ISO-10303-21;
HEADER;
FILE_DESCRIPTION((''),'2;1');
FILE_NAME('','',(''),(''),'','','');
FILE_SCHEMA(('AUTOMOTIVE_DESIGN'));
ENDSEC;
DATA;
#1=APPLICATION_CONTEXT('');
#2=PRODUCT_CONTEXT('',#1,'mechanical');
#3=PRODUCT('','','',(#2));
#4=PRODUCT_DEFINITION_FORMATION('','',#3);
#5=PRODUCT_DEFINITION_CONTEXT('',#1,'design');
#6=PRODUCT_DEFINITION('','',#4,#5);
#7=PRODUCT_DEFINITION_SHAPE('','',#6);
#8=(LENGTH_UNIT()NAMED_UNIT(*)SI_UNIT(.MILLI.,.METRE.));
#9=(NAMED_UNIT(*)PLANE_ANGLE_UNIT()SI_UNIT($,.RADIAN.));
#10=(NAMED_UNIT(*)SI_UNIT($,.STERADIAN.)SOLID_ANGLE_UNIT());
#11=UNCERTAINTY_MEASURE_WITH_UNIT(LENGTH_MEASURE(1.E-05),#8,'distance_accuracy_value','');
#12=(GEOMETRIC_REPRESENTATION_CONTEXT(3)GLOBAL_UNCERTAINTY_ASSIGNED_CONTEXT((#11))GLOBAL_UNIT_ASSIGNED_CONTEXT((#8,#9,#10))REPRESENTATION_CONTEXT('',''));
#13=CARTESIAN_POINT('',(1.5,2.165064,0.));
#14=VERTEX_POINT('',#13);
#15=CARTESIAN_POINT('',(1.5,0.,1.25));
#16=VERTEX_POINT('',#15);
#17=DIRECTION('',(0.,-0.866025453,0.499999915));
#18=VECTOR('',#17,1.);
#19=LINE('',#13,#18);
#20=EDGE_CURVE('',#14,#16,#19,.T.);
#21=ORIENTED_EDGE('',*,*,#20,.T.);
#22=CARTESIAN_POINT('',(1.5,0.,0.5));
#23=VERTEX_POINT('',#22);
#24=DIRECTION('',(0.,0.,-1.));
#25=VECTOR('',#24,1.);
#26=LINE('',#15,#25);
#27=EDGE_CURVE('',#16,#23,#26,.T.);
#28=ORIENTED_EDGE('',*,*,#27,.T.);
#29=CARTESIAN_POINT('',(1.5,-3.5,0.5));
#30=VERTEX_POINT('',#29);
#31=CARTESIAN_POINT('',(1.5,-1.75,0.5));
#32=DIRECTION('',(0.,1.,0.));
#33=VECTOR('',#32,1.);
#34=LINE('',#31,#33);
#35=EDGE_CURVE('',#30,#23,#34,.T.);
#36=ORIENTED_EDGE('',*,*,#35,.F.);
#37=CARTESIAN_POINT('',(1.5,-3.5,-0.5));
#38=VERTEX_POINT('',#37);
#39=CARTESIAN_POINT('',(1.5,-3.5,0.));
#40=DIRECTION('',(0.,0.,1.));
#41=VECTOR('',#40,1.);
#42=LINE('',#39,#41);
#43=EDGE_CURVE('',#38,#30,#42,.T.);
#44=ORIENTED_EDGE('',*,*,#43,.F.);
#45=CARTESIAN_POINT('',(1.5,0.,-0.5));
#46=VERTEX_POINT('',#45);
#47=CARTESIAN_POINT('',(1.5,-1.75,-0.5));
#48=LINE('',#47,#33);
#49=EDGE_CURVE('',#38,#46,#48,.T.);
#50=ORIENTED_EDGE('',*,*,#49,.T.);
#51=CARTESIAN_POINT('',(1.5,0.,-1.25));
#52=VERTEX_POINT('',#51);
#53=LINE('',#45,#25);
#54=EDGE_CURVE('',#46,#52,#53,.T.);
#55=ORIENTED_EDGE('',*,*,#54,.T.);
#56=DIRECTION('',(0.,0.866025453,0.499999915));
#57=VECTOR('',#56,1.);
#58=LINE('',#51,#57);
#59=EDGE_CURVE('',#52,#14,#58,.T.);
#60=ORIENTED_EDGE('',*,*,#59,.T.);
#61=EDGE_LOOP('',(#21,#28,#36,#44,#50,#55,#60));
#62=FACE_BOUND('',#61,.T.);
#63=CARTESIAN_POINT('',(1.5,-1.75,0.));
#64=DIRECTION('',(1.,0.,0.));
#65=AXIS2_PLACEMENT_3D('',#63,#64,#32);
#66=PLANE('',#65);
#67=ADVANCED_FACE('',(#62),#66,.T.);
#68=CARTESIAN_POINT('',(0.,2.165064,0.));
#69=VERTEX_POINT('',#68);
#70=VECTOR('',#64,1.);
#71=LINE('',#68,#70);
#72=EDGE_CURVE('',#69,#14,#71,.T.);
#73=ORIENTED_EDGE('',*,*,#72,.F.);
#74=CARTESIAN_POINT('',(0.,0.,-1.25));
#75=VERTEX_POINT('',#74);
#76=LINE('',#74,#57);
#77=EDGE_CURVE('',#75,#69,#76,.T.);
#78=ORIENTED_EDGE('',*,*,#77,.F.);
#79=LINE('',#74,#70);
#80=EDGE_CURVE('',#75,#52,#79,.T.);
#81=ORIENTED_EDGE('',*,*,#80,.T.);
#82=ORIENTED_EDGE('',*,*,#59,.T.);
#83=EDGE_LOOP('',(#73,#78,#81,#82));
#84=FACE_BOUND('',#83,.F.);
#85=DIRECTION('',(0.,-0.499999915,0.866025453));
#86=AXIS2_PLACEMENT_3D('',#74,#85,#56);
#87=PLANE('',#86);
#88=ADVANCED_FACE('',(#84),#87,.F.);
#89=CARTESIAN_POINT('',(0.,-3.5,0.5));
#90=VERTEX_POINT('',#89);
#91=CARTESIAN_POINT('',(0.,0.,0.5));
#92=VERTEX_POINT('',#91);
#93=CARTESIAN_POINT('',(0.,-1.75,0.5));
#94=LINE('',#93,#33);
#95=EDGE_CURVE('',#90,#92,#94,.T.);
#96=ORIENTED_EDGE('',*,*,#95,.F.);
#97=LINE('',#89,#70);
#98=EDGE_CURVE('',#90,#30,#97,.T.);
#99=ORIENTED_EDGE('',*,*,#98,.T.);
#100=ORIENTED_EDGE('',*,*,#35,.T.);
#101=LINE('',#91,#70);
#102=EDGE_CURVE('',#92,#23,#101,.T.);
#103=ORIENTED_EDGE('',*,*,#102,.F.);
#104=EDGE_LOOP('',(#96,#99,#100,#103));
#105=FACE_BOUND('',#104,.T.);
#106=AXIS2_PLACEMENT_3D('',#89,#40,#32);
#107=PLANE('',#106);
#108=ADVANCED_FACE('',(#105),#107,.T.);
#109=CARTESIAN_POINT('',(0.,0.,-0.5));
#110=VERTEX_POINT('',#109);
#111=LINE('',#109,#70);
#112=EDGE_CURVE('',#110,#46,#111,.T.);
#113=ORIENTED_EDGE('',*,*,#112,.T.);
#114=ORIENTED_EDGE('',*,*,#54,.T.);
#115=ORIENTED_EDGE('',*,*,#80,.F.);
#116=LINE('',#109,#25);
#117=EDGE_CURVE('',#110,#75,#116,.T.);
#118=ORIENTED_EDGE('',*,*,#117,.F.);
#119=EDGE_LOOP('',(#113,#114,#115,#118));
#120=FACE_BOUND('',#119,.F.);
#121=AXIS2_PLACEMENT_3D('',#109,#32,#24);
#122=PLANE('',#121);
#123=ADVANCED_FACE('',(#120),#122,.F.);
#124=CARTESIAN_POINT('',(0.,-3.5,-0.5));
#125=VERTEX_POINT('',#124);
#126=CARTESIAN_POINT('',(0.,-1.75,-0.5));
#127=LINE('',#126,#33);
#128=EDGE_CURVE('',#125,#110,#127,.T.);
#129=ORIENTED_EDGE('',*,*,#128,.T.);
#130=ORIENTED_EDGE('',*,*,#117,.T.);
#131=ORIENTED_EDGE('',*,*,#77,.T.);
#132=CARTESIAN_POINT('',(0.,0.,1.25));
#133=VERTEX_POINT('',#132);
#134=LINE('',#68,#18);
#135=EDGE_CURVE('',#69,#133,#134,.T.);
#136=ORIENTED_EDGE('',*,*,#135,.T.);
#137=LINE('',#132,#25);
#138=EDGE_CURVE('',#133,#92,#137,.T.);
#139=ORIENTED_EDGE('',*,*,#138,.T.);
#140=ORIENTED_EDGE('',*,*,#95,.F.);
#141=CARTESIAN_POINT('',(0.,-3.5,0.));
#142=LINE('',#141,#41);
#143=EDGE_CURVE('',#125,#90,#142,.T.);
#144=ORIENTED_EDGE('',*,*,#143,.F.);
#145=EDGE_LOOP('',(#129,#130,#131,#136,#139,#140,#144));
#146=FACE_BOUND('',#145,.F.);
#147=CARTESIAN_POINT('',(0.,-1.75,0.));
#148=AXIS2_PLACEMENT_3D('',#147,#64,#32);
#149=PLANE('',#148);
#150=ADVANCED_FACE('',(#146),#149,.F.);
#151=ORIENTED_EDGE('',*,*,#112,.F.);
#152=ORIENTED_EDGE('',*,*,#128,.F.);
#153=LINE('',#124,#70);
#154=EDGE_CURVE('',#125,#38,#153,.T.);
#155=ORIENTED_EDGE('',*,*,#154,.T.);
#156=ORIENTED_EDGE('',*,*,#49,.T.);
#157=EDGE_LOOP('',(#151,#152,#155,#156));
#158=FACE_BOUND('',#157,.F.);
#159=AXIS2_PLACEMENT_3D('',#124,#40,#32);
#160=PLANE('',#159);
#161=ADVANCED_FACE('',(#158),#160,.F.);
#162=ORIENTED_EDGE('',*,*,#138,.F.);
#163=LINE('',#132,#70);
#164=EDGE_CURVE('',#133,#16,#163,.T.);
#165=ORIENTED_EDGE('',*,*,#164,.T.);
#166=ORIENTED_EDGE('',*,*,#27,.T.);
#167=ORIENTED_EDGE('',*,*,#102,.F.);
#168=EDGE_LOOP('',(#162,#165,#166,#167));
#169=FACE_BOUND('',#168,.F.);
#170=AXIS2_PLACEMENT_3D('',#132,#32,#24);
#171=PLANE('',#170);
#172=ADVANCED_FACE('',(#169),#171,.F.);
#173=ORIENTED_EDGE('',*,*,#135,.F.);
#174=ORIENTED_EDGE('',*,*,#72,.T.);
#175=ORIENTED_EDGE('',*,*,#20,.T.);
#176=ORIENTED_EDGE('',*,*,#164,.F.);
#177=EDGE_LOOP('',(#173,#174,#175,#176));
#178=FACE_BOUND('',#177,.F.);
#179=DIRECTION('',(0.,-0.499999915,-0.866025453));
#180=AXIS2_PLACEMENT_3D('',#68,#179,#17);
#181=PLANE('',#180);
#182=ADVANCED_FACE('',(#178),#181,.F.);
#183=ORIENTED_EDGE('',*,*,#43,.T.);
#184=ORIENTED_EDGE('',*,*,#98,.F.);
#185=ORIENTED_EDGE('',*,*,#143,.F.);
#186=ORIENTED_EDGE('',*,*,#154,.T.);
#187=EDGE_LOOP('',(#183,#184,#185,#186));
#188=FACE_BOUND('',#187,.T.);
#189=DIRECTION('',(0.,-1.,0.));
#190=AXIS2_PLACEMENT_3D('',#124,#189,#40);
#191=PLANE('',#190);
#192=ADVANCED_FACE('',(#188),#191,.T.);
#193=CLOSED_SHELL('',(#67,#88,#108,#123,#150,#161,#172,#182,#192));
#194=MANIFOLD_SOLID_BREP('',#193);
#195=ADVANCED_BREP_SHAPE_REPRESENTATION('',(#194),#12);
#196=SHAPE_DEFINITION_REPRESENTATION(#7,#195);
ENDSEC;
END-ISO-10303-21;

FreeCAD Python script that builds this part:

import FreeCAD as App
import Part
import Sketcher

V = App.Vector
Q = App.Units.Quantity


def add_polygon(sketch, points):
    """Adds a closed chain of lines whose ends are joined by coincident constraints."""
    first, n = sketch.GeometryCount, len(points)
    for a, b in zip(points, points[1:] + points[:1]):
        sketch.addGeometry(Part.LineSegment(App.Vector(*a, 0), App.Vector(*b, 0)), False)
    for i in range(n):
        sketch.addConstraint(Sketcher.Constraint("Coincident", first + i, 2, first + (i + 1) % n, 1))

doc = App.newDocument("Part")
params = doc.addObject("Spreadsheet::Sheet", "Params")
for row, (alias, value) in enumerate([
    ("sketch1_height", "1 mm"),
    ("sketch1_width", "3.5 mm"),
    ("sketch1_length", "2.5 mm"),
    ("pad1_length", "1.5 mm"),
], start=1):
    params.set(f"A{row}", alias)
    params.set(f"B{row}", "=" + value)
    params.setAlias(f"B{row}", alias)

body = doc.addObject("PartDesign::Body", "Body")

sketch1 = body.newObject("Sketcher::SketchObject", "Sketch")
sketch1.AttachmentSupport = (doc.getObject("YZ_Plane"), [""])
sketch1.MapMode = "FlatFace"
add_polygon(sketch1, [(-3.5, 0.5), (-3.5, -0.5), (0, -0.5), (0, -1.2), (2.2, 0), (0, 1.2), (0, 0.5)])
sketch1.addConstraint(Sketcher.Constraint("Vertical", 0))
sketch1.addConstraint(Sketcher.Constraint("Horizontal", 1))
sketch1.addConstraint(Sketcher.Constraint("Vertical", 2))
sketch1.addConstraint(Sketcher.Constraint("Vertical", 5))
sketch1.addConstraint(Sketcher.Constraint("Horizontal", 6))
sketch1.addConstraint(Sketcher.Constraint("Symmetric", 2, 2, 4, 2, -1, 1))
sketch1.addConstraint(Sketcher.Constraint("Symmetric", 1, 2, 5, 2, -1))
sketch1.addConstraint(Sketcher.Constraint("PointOnObject", 3, 2, -1))
sketch1.addConstraint(Sketcher.Constraint("DistanceY", 0, 2, 0, 1, 1.0))
sketch1.addConstraint(Sketcher.Constraint("Angle", 3, Q("29.999994 deg")))
sketch1.addConstraint(Sketcher.Constraint("DistanceX", 1, 1, 1, 2, 3.5))
sketch1.addConstraint(Sketcher.Constraint("Distance", 3, 2.5))
sketch1.setExpression("Constraints[15]", "Params.sketch1_height")
sketch1.setExpression("Constraints[17]", "Params.sketch1_width")
sketch1.setExpression("Constraints[18]", "Params.sketch1_length")
pad1 = body.newObject("PartDesign::Pad", "Pad")
pad1.Profile = sketch1
pad1.setExpression("Length", "Params.pad1_length")

doc.recompute()
